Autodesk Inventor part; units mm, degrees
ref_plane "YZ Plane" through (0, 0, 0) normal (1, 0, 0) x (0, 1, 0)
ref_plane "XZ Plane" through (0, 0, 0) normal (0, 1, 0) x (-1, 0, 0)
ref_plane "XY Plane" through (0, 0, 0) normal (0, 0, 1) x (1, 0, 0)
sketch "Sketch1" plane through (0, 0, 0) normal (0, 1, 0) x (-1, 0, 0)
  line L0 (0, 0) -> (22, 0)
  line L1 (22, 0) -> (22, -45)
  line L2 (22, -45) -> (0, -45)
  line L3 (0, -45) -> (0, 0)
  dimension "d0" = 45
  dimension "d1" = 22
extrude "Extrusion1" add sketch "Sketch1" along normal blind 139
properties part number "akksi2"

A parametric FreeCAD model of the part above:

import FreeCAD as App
import Part
import Sketcher
Q = App.Units.Quantity


def add_polygon(sketch, points):
    """Adds a closed chain of lines whose ends are joined by coincident constraints."""
    first, n = sketch.GeometryCount, len(points)
    for a, b in zip(points, points[1:] + points[:1]):
        sketch.addGeometry(Part.LineSegment(App.Vector(*a, 0), App.Vector(*b, 0)), False)
    for i in range(n):
        sketch.addConstraint(Sketcher.Constraint("Coincident", first + i, 2, first + (i + 1) % n, 1))

doc = App.newDocument("Part")
params = doc.addObject("Spreadsheet::Sheet", "Params")
for row, (alias, value) in enumerate([
    ("sketch1_width", "22 mm"),
    ("sketch1_height", "45 mm"),
    ("pad1_length", "139 mm"),
], start=1):
    params.set(f"A{row}", alias)
    params.set(f"B{row}", "=" + value)
    params.setAlias(f"B{row}", alias)

body = doc.addObject("PartDesign::Body", "Body")

# Sketch on XZ plane
sketch1 = doc.addObject("Sketcher::SketchObject", "Sketch")
body.addObject(sketch1)
sketch1.AttachmentSupport = (doc.XZ_Plane, [""])
sketch1.MapMode = "FlatFace"
add_polygon(sketch1, [(-22, 0), (0, 0), (0, -45), (-22, -45)])  # lines 0-3
sketch1.addConstraint(Sketcher.Constraint("Horizontal", 0))
sketch1.addConstraint(Sketcher.Constraint("Vertical", 1))
sketch1.addConstraint(Sketcher.Constraint("Horizontal", 2))
sketch1.addConstraint(Sketcher.Constraint("Vertical", 3))
sketch1.addConstraint(Sketcher.Constraint("Coincident", 0, 2, -1, 1))
sketch1.addConstraint(Sketcher.Constraint("DistanceX", 0, 1, 0, 2, Q("22 mm")))
sketch1.addConstraint(Sketcher.Constraint("DistanceY", 1, 2, 1, 1, Q("45 mm")))
sketch1.setExpression("Constraints[9]", "Params.sketch1_width")
sketch1.setExpression("Constraints[10]", "Params.sketch1_height")
pad1 = doc.addObject("PartDesign::Pad", "Pad")
body.addObject(pad1)
pad1.Profile = sketch1
pad1.setExpression("Length", "Params.pad1_length")
pad1.Reversed = True

doc.recompute()
